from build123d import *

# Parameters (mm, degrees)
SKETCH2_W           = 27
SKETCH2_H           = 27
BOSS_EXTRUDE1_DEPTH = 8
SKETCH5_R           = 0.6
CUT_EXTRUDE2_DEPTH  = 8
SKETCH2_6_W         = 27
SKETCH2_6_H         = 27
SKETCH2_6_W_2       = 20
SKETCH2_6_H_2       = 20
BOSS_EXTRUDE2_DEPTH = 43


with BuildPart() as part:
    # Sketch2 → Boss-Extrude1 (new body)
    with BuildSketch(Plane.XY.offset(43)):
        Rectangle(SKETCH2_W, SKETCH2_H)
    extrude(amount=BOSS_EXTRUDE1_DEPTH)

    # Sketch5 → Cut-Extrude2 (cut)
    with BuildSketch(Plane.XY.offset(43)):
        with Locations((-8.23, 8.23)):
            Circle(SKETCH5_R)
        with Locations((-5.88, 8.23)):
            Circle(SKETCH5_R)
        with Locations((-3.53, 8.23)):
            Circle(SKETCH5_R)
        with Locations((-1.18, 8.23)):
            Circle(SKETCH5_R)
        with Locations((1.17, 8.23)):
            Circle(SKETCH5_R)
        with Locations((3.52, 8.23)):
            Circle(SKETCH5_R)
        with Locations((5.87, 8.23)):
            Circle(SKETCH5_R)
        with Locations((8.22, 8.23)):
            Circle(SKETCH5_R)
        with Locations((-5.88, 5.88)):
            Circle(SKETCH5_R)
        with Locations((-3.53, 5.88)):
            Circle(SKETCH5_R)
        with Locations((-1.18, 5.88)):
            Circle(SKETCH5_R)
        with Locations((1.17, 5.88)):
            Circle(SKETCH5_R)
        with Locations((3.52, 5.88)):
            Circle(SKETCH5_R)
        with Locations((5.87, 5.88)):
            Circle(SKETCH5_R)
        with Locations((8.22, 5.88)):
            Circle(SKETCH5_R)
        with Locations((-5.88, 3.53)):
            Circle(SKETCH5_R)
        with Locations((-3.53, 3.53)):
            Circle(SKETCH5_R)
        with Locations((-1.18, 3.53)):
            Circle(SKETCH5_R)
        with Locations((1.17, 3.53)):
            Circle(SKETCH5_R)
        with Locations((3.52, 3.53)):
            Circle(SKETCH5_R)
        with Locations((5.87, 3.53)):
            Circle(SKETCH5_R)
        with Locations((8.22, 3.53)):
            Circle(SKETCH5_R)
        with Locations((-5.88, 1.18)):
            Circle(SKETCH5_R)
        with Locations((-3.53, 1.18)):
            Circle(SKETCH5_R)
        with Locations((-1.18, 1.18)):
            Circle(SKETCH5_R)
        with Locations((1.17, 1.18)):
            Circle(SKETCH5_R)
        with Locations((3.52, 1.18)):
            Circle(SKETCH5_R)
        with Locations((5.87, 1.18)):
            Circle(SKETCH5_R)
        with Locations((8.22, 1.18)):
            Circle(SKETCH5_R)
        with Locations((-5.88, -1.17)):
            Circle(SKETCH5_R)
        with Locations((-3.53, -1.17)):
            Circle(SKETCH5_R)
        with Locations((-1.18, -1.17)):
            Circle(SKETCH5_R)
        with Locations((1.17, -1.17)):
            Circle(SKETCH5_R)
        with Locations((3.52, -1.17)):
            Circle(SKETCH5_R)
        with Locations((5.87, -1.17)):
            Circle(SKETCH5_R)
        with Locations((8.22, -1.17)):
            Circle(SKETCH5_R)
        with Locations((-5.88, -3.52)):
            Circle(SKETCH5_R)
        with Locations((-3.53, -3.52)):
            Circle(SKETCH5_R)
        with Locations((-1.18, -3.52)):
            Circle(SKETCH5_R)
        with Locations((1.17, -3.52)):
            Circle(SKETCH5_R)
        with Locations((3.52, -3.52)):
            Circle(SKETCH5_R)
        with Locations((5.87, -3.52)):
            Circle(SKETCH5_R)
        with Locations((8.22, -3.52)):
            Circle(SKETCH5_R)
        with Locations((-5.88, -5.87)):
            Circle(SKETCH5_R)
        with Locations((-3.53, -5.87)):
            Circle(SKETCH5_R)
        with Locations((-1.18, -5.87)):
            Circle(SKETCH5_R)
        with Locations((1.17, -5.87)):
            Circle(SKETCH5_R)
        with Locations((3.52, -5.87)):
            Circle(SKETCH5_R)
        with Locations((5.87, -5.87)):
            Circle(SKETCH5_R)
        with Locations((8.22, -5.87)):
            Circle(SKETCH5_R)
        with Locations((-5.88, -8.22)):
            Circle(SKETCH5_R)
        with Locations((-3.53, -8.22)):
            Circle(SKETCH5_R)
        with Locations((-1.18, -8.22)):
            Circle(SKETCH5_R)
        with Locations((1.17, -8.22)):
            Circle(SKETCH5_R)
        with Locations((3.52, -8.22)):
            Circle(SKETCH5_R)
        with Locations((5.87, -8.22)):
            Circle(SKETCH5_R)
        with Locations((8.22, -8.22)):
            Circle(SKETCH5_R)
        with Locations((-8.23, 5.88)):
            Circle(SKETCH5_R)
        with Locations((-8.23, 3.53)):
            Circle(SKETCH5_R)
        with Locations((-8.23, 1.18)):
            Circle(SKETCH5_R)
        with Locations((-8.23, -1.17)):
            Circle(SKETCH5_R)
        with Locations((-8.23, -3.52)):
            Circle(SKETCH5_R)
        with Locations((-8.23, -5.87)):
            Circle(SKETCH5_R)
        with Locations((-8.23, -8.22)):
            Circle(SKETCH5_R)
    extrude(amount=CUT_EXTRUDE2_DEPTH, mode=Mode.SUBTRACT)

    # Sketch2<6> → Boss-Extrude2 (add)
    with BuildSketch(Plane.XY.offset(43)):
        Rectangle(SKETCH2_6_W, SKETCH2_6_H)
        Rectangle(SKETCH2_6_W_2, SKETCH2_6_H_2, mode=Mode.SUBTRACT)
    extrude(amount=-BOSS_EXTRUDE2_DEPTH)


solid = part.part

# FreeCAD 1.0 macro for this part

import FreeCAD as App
import Part
import Sketcher
from FreeCAD import Vector
Q = App.Units.Quantity


def add_polygon(sketch, points):
    """Adds a closed chain of lines whose ends are joined by coincident constraints."""
    first, n = sketch.GeometryCount, len(points)
    for a, b in zip(points, points[1:] + points[:1]):
        sketch.addGeometry(Part.LineSegment(App.Vector(*a, 0), App.Vector(*b, 0)), False)
    for i in range(n):
        sketch.addConstraint(Sketcher.Constraint("Coincident", first + i, 2, first + (i + 1) % n, 1))

doc = App.newDocument("Part")
body = doc.addObject("PartDesign::Body", "Body")

# Sketch on XY plane
sketch1 = body.newObject("Sketcher::SketchObject", "Sketch")
sketch1.AttachmentSupport = (doc.getObject("XY_Plane"), [""])
sketch1.MapMode = "FlatFace"
sketch1.AttachmentOffset = App.Placement(Vector(0, 0, 43), App.Rotation())
add_polygon(sketch1, [(-13.5, 13.5), (-13.5, -13.5), (13.5, -13.5), (13.5, 13.5)])  # lines 0-3
sketch1.addConstraint([
    Sketcher.Constraint("Vertical", 0),
    Sketcher.Constraint("Horizontal", 1),
    Sketcher.Constraint("Vertical", 2),
    Sketcher.Constraint("Horizontal", 3),
    Sketcher.Constraint("Symmetric", 0, 2, 2, 2, -1, 1),
    Sketcher.Constraint("Equal", 3, 0),
    Sketcher.Constraint("DistanceX", 1, 1, 1, 2, Q("27 mm")),
])
pad1 = body.newObject("PartDesign::Pad", "Pad")
pad1.Profile = sketch1
pad1.Length = 8

# Sketch on XY plane
sketch2 = body.newObject("Sketcher::SketchObject", "Sketch001")
sketch2.AttachmentSupport = (doc.getObject("XY_Plane"), [""])
sketch2.MapMode = "FlatFace"
sketch2.AttachmentOffset = App.Placement(Vector(0, 0, 43), App.Rotation())
sketch2.addGeometry([
    Part.Circle(Vector(-8.23, 8.23, 0), Vector(0, 0, 1), 0.6),  # 0
    Part.Circle(Vector(-5.88, 8.23, 0), Vector(0, 0, 1), 0.6),  # 1
    Part.Circle(Vector(-3.53, 8.23, 0), Vector(0, 0, 1), 0.6),  # 2
    Part.Circle(Vector(-1.18, 8.23, 0), Vector(0, 0, 1), 0.6),  # 3
    Part.Circle(Vector(1.17, 8.23, 0), Vector(0, 0, 1), 0.6),  # 4
    Part.Circle(Vector(3.52, 8.23, 0), Vector(0, 0, 1), 0.6),  # 5
    Part.Circle(Vector(5.87, 8.23, 0), Vector(0, 0, 1), 0.6),  # 6
    Part.Circle(Vector(8.22, 8.23, 0), Vector(0, 0, 1), 0.6),  # 7
    Part.Circle(Vector(-5.88, 5.88, 0), Vector(0, 0, 1), 0.6),  # 8
    Part.Circle(Vector(-3.53, 5.88, 0), Vector(0, 0, 1), 0.6),  # 9
    Part.Circle(Vector(-1.18, 5.88, 0), Vector(0, 0, 1), 0.6),  # 10
    Part.Circle(Vector(1.17, 5.88, 0), Vector(0, 0, 1), 0.6),  # 11
    Part.Circle(Vector(3.52, 5.88, 0), Vector(0, 0, 1), 0.6),  # 12
    Part.Circle(Vector(5.87, 5.88, 0), Vector(0, 0, 1), 0.6),  # 13
    Part.Circle(Vector(8.22, 5.88, 0), Vector(0, 0, 1), 0.6),  # 14
    Part.Circle(Vector(-5.88, 3.53, 0), Vector(0, 0, 1), 0.6),  # 15
    Part.Circle(Vector(-3.53, 3.53, 0), Vector(0, 0, 1), 0.6),  # 16
    Part.Circle(Vector(-1.18, 3.53, 0), Vector(0, 0, 1), 0.6),  # 17
    Part.Circle(Vector(1.17, 3.53, 0), Vector(0, 0, 1), 0.6),  # 18
    Part.Circle(Vector(3.52, 3.53, 0), Vector(0, 0, 1), 0.6),  # 19
    Part.Circle(Vector(5.87, 3.53, 0), Vector(0, 0, 1), 0.6),  # 20
    Part.Circle(Vector(8.22, 3.53, 0), Vector(0, 0, 1), 0.6),  # 21
    Part.Circle(Vector(-5.88, 1.18, 0), Vector(0, 0, 1), 0.6),  # 22
    Part.Circle(Vector(-3.53, 1.18, 0), Vector(0, 0, 1), 0.6),  # 23
    Part.Circle(Vector(-1.18, 1.18, 0), Vector(0, 0, 1), 0.6),  # 24
    Part.Circle(Vector(1.17, 1.18, 0), Vector(0, 0, 1), 0.6),  # 25
    Part.Circle(Vector(3.52, 1.18, 0), Vector(0, 0, 1), 0.6),  # 26
    Part.Circle(Vector(5.87, 1.18, 0), Vector(0, 0, 1), 0.6),  # 27
    Part.Circle(Vector(8.22, 1.18, 0), Vector(0, 0, 1), 0.6),  # 28
    Part.Circle(Vector(-5.88, -1.17, 0), Vector(0, 0, 1), 0.6),  # 29
    Part.Circle(Vector(-3.53, -1.17, 0), Vector(0, 0, 1), 0.6),  # 30
    Part.Circle(Vector(-1.18, -1.17, 0), Vector(0, 0, 1), 0.6),  # 31
    Part.Circle(Vector(1.17, -1.17, 0), Vector(0, 0, 1), 0.6),  # 32
    Part.Circle(Vector(3.52, -1.17, 0), Vector(0, 0, 1), 0.6),  # 33
    Part.Circle(Vector(5.87, -1.17, 0), Vector(0, 0, 1), 0.6),  # 34
    Part.Circle(Vector(8.22, -1.17, 0), Vector(0, 0, 1), 0.6),  # 35
    Part.Circle(Vector(-5.88, -3.52, 0), Vector(0, 0, 1), 0.6),  # 36
    Part.Circle(Vector(-3.53, -3.52, 0), Vector(0, 0, 1), 0.6),  # 37
    Part.Circle(Vector(-1.18, -3.52, 0), Vector(0, 0, 1), 0.6),  # 38
    Part.Circle(Vector(1.17, -3.52, 0), Vector(0, 0, 1), 0.6),  # 39
    Part.Circle(Vector(3.52, -3.52, 0), Vector(0, 0, 1), 0.6),  # 40
    Part.Circle(Vector(5.87, -3.52, 0), Vector(0, 0, 1), 0.6),  # 41
    Part.Circle(Vector(8.22, -3.52, 0), Vector(0, 0, 1), 0.6),  # 42
    Part.Circle(Vector(-5.88, -5.87, 0), Vector(0, 0, 1), 0.6),  # 43
    Part.Circle(Vector(-3.53, -5.87, 0), Vector(0, 0, 1), 0.6),  # 44
    Part.Circle(Vector(-1.18, -5.87, 0), Vector(0, 0, 1), 0.6),  # 45
    Part.Circle(Vector(1.17, -5.87, 0), Vector(0, 0, 1), 0.6),  # 46
    Part.Circle(Vector(3.52, -5.87, 0), Vector(0, 0, 1), 0.6),  # 47
    Part.Circle(Vector(5.87, -5.87, 0), Vector(0, 0, 1), 0.6),  # 48
    Part.Circle(Vector(8.22, -5.87, 0), Vector(0, 0, 1), 0.6),  # 49
    Part.Circle(Vector(-5.88, -8.22, 0), Vector(0, 0, 1), 0.6),  # 50
    Part.Circle(Vector(-3.53, -8.22, 0), Vector(0, 0, 1), 0.6),  # 51
    Part.Circle(Vector(-1.18, -8.22, 0), Vector(0, 0, 1), 0.6),  # 52
    Part.Circle(Vector(1.17, -8.22, 0), Vector(0, 0, 1), 0.6),  # 53
    Part.Circle(Vector(3.52, -8.22, 0), Vector(0, 0, 1), 0.6),  # 54
    Part.Circle(Vector(5.87, -8.22, 0), Vector(0, 0, 1), 0.6),  # 55
    Part.Circle(Vector(8.22, -8.22, 0), Vector(0, 0, 1), 0.6),  # 56
    Part.Circle(Vector(-8.23, 5.88, 0), Vector(0, 0, 1), 0.6),  # 57
    Part.Circle(Vector(-8.23, 3.53, 0), Vector(0, 0, 1), 0.6),  # 58
    Part.Circle(Vector(-8.23, 1.18, 0), Vector(0, 0, 1), 0.6),  # 59
    Part.Circle(Vector(-8.23, -1.17, 0), Vector(0, 0, 1), 0.6),  # 60
    Part.Circle(Vector(-8.23, -3.52, 0), Vector(0, 0, 1), 0.6),  # 61
    Part.Circle(Vector(-8.23, -5.87, 0), Vector(0, 0, 1), 0.6),  # 62
    Part.Circle(Vector(-8.23, -8.22, 0), Vector(0, 0, 1), 0.6),  # 63
], False)
sketch2.addConstraint([
    Sketcher.Constraint("Equal", 0, 1),
    Sketcher.Constraint("Equal", 1, 2),
    Sketcher.Constraint("Equal", 2, 3),
    Sketcher.Constraint("Equal", 3, 4),
    Sketcher.Constraint("Equal", 4, 5),
    Sketcher.Constraint("Equal", 5, 6),
    Sketcher.Constraint("Equal", 6, 7),
    Sketcher.Constraint("Equal", 7, 8),
    Sketcher.Constraint("Equal", 8, 9),
    Sketcher.Constraint("Equal", 9, 10),
    Sketcher.Constraint("Equal", 10, 11),
    Sketcher.Constraint("Equal", 11, 12),
    Sketcher.Constraint("Equal", 12, 13),
    Sketcher.Constraint("Equal", 13, 14),
    Sketcher.Constraint("Equal", 14, 15),
    Sketcher.Constraint("Equal", 15, 16),
    Sketcher.Constraint("Equal", 16, 17),
    Sketcher.Constraint("Equal", 17, 18),
    Sketcher.Constraint("Equal", 18, 19),
    Sketcher.Constraint("Equal", 19, 20),
    Sketcher.Constraint("Equal", 20, 21),
    Sketcher.Constraint("Equal", 21, 22),
    Sketcher.Constraint("Equal", 22, 23),
    Sketcher.Constraint("Equal", 23, 24),
    Sketcher.Constraint("Equal", 24, 25),
    Sketcher.Constraint("Equal", 25, 26),
    Sketcher.Constraint("Equal", 26, 27),
    Sketcher.Constraint("Equal", 27, 28),
    Sketcher.Constraint("Equal", 28, 29),
    Sketcher.Constraint("Equal", 29, 30),
    Sketcher.Constraint("Equal", 30, 31),
    Sketcher.Constraint("Equal", 31, 32),
    Sketcher.Constraint("Equal", 32, 33),
    Sketcher.Constraint("Equal", 33, 34),
    Sketcher.Constraint("Equal", 34, 35),
    Sketcher.Constraint("Equal", 35, 36),
    Sketcher.Constraint("Equal", 36, 37),
    Sketcher.Constraint("Equal", 37, 38),
    Sketcher.Constraint("Equal", 38, 39),
    Sketcher.Constraint("Equal", 39, 40),
    Sketcher.Constraint("Equal", 40, 41),
    Sketcher.Constraint("Equal", 41, 42),
    Sketcher.Constraint("Equal", 42, 43),
    Sketcher.Constraint("Equal", 43, 44),
    Sketcher.Constraint("Equal", 44, 45),
    Sketcher.Constraint("Equal", 45, 46),
    Sketcher.Constraint("Equal", 46, 47),
    Sketcher.Constraint("Equal", 47, 48),
    Sketcher.Constraint("Equal", 48, 49),
    Sketcher.Constraint("Equal", 49, 50),
    Sketcher.Constraint("Equal", 50, 51),
    Sketcher.Constraint("Equal", 51, 52),
    Sketcher.Constraint("Equal", 52, 53),
    Sketcher.Constraint("Equal", 53, 54),
    Sketcher.Constraint("Equal", 54, 55),
    Sketcher.Constraint("Equal", 55, 56),
    Sketcher.Constraint("Equal", 56, 57),
    Sketcher.Constraint("Equal", 57, 58),
    Sketcher.Constraint("Equal", 58, 59),
    Sketcher.Constraint("Equal", 59, 60),
    Sketcher.Constraint("Equal", 60, 61),
    Sketcher.Constraint("Equal", 61, 62),
    Sketcher.Constraint("Equal", 62, 63),
    Sketcher.Constraint("Horizontal", 0, 3, 1, 3),
    Sketcher.Constraint("Horizontal", 1, 3, 2, 3),
    Sketcher.Constraint("Horizontal", 2, 3, 3, 3),
    Sketcher.Constraint("Horizontal", 3, 3, 4, 3),
    Sketcher.Constraint("Horizontal", 4, 3, 5, 3),
    Sketcher.Constraint("Horizontal", 5, 3, 6, 3),
    Sketcher.Constraint("Horizontal", 6, 3, 7, 3),
    Sketcher.Constraint("Horizontal", 8, 3, 9, 3),
    Sketcher.Constraint("Horizontal", 9, 3, 10, 3),
    Sketcher.Constraint("Horizontal", 10, 3, 11, 3),
    Sketcher.Constraint("Horizontal", 11, 3, 12, 3),
    Sketcher.Constraint("Horizontal", 12, 3, 13, 3),
    Sketcher.Constraint("Horizontal", 13, 3, 14, 3),
    Sketcher.Constraint("Horizontal", 15, 3, 16, 3),
    Sketcher.Constraint("Horizontal", 16, 3, 17, 3),
    Sketcher.Constraint("Horizontal", 17, 3, 18, 3),
    Sketcher.Constraint("Horizontal", 18, 3, 19, 3),
    Sketcher.Constraint("Horizontal", 19, 3, 20, 3),
    Sketcher.Constraint("Horizontal", 20, 3, 21, 3),
    Sketcher.Constraint("Horizontal", 22, 3, 23, 3),
    Sketcher.Constraint("Horizontal", 23, 3, 24, 3),
    Sketcher.Constraint("Horizontal", 24, 3, 25, 3),
    Sketcher.Constraint("Horizontal", 25, 3, 26, 3),
    Sketcher.Constraint("Horizontal", 26, 3, 27, 3),
    Sketcher.Constraint("Horizontal", 27, 3, 28, 3),
    Sketcher.Constraint("Horizontal", 29, 3, 30, 3),
    Sketcher.Constraint("Horizontal", 30, 3, 31, 3),
    Sketcher.Constraint("Horizontal", 31, 3, 32, 3),
    Sketcher.Constraint("Horizontal", 32, 3, 33, 3),
    Sketcher.Constraint("Horizontal", 33, 3, 34, 3),
    Sketcher.Constraint("Horizontal", 34, 3, 35, 3),
    Sketcher.Constraint("Horizontal", 36, 3, 37, 3),
    Sketcher.Constraint("Horizontal", 37, 3, 38, 3),
    Sketcher.Constraint("Horizontal", 38, 3, 39, 3),
    Sketcher.Constraint("Horizontal", 39, 3, 40, 3),
    Sketcher.Constraint("Horizontal", 40, 3, 41, 3),
    Sketcher.Constraint("Horizontal", 41, 3, 42, 3),
    Sketcher.Constraint("Horizontal", 43, 3, 44, 3),
    Sketcher.Constraint("Horizontal", 44, 3, 45, 3),
    Sketcher.Constraint("Horizontal", 45, 3, 46, 3),
    Sketcher.Constraint("Horizontal", 46, 3, 47, 3),
    Sketcher.Constraint("Horizontal", 47, 3, 48, 3),
    Sketcher.Constraint("Horizontal", 48, 3, 49, 3),
    Sketcher.Constraint("Horizontal", 50, 3, 51, 3),
    Sketcher.Constraint("Horizontal", 51, 3, 52, 3),
    Sketcher.Constraint("Horizontal", 52, 3, 53, 3),
    Sketcher.Constraint("Horizontal", 53, 3, 54, 3),
    Sketcher.Constraint("Horizontal", 54, 3, 55, 3),
    Sketcher.Constraint("Horizontal", 55, 3, 56, 3),
    Sketcher.Constraint("Horizontal", 14, 3, 57, 3),
    Sketcher.Constraint("Horizontal", 21, 3, 58, 3),
    Sketcher.Constraint("Horizontal", 28, 3, 59, 3),
    Sketcher.Constraint("Horizontal", 35, 3, 60, 3),
    Sketcher.Constraint("Horizontal", 42, 3, 61, 3),
    Sketcher.Constraint("Horizontal", 49, 3, 62, 3),
    Sketcher.Constraint("Horizontal", 56, 3, 63, 3),
    Sketcher.Constraint("Vertical", 1, 3, 8, 3),
    Sketcher.Constraint("Vertical", 2, 3, 9, 3),
    Sketcher.Constraint("Vertical", 3, 3, 10, 3),
    Sketcher.Constraint("Vertical", 4, 3, 11, 3),
    Sketcher.Constraint("Vertical", 5, 3, 12, 3),
    Sketcher.Constraint("Vertical", 6, 3, 13, 3),
    Sketcher.Constraint("Vertical", 7, 3, 14, 3),
    Sketcher.Constraint("Vertical", 8, 3, 15, 3),
    Sketcher.Constraint("Vertical", 9, 3, 16, 3),
    Sketcher.Constraint("Vertical", 10, 3, 17, 3),
    Sketcher.Constraint("Vertical", 11, 3, 18, 3),
    Sketcher.Constraint("Vertical", 12, 3, 19, 3),
    Sketcher.Constraint("Vertical", 13, 3, 20, 3),
    Sketcher.Constraint("Vertical", 14, 3, 21, 3),
    Sketcher.Constraint("Vertical", 15, 3, 22, 3),
    Sketcher.Constraint("Vertical", 16, 3, 23, 3),
    Sketcher.Constraint("Vertical", 17, 3, 24, 3),
    Sketcher.Constraint("Vertical", 18, 3, 25, 3),
    Sketcher.Constraint("Vertical", 19, 3, 26, 3),
    Sketcher.Constraint("Vertical", 20, 3, 27, 3),
    Sketcher.Constraint("Vertical", 21, 3, 28, 3),
    Sketcher.Constraint("Vertical", 22, 3, 29, 3),
    Sketcher.Constraint("Vertical", 23, 3, 30, 3),
    Sketcher.Constraint("Vertical", 24, 3, 31, 3),
    Sketcher.Constraint("Vertical", 25, 3, 32, 3),
    Sketcher.Constraint("Vertical", 26, 3, 33, 3),
    Sketcher.Constraint("Vertical", 27, 3, 34, 3),
    Sketcher.Constraint("Vertical", 28, 3, 35, 3),
    Sketcher.Constraint("Vertical", 29, 3, 36, 3),
    Sketcher.Constraint("Vertical", 30, 3, 37, 3),
    Sketcher.Constraint("Vertical", 31, 3, 38, 3),
    Sketcher.Constraint("Vertical", 32, 3, 39, 3),
    Sketcher.Constraint("Vertical", 33, 3, 40, 3),
    Sketcher.Constraint("Vertical", 34, 3, 41, 3),
    Sketcher.Constraint("Vertical", 35, 3, 42, 3),
    Sketcher.Constraint("Vertical", 36, 3, 43, 3),
    Sketcher.Constraint("Vertical", 37, 3, 44, 3),
    Sketcher.Constraint("Vertical", 38, 3, 45, 3),
    Sketcher.Constraint("Vertical", 39, 3, 46, 3),
    Sketcher.Constraint("Vertical", 40, 3, 47, 3),
    Sketcher.Constraint("Vertical", 41, 3, 48, 3),
    Sketcher.Constraint("Vertical", 42, 3, 49, 3),
    Sketcher.Constraint("Vertical", 43, 3, 50, 3),
    Sketcher.Constraint("Vertical", 44, 3, 51, 3),
    Sketcher.Constraint("Vertical", 45, 3, 52, 3),
    Sketcher.Constraint("Vertical", 46, 3, 53, 3),
    Sketcher.Constraint("Vertical", 47, 3, 54, 3),
    Sketcher.Constraint("Vertical", 48, 3, 55, 3),
    Sketcher.Constraint("Vertical", 49, 3, 56, 3),
    Sketcher.Constraint("Vertical", 0, 3, 57, 3),
    Sketcher.Constraint("Vertical", 57, 3, 58, 3),
    Sketcher.Constraint("Vertical", 58, 3, 59, 3),
    Sketcher.Constraint("Vertical", 59, 3, 60, 3),
    Sketcher.Constraint("Vertical", 60, 3, 61, 3),
    Sketcher.Constraint("Vertical", 61, 3, 62, 3),
    Sketcher.Constraint("Vertical", 62, 3, 63, 3),
    Sketcher.Constraint("Diameter", 0, Q("1.2 mm")),
    Sketcher.Constraint("DistanceX", 0, 3, -1, 1, Q("8.23 mm")),
    Sketcher.Constraint("DistanceY", -1, 1, 0, 3, Q("8.23 mm")),
    Sketcher.Constraint("DistanceX", 1, 3, -1, 1, Q("5.88 mm")),
    Sketcher.Constraint("DistanceX", 2, 3, -1, 1, Q("3.53 mm")),
    Sketcher.Constraint("DistanceX", 3, 3, -1, 1, Q("1.18 mm")),
    Sketcher.Constraint("DistanceX", -1, 1, 4, 3, Q("1.17 mm")),
    Sketcher.Constraint("DistanceX", -1, 1, 5, 3, Q("3.52 mm")),
    Sketcher.Constraint("DistanceX", -1, 1, 6, 3, Q("5.87 mm")),
    Sketcher.Constraint("DistanceX", -1, 1, 7, 3, Q("8.22 mm")),
    Sketcher.Constraint("DistanceY", -1, 1, 8, 3, Q("5.88 mm")),
    Sketcher.Constraint("DistanceY", -1, 1, 15, 3, Q("3.53 mm")),
    Sketcher.Constraint("DistanceY", -1, 1, 22, 3, Q("1.18 mm")),
    Sketcher.Constraint("DistanceY", 29, 3, -1, 1, Q("1.17 mm")),
    Sketcher.Constraint("DistanceY", 36, 3, -1, 1, Q("3.52 mm")),
    Sketcher.Constraint("DistanceY", 43, 3, -1, 1, Q("5.87 mm")),
    Sketcher.Constraint("DistanceY", 50, 3, -1, 1, Q("8.22 mm")),
])
pocket1 = body.newObject("PartDesign::Pocket", "Pocket")
pocket1.Profile = sketch2
pocket1.Length = 8
pocket1.Reversed = True

# Sketch on XY plane
sketch3 = body.newObject("Sketcher::SketchObject", "Sketch002")
sketch3.AttachmentSupport = (doc.getObject("XY_Plane"), [""])
sketch3.MapMode = "FlatFace"
sketch3.AttachmentOffset = App.Placement(Vector(0, 0, 43), App.Rotation())
add_polygon(sketch3, [(-13.5, 13.5), (-13.5, -13.5), (13.5, -13.5), (13.5, 13.5)])  # lines 0-3
add_polygon(sketch3, [(10, -10), (-10, -10), (-10, 10), (10, 10)])  # lines 4-7
sketch3.addConstraint([
    Sketcher.Constraint("Vertical", 0),
    Sketcher.Constraint("Horizontal", 1),
    Sketcher.Constraint("Vertical", 2),
    Sketcher.Constraint("Horizontal", 3),
    Sketcher.Constraint("Horizontal", 4),
    Sketcher.Constraint("Vertical", 5),
    Sketcher.Constraint("Horizontal", 6),
    Sketcher.Constraint("Vertical", 7),
    Sketcher.Constraint("Symmetric", 0, 2, 2, 2, -1, 1),
    Sketcher.Constraint("Symmetric", 4, 2, 6, 2, -1, 1),
    Sketcher.Constraint("Equal", 3, 0),
    Sketcher.Constraint("Equal", 6, 5),
    Sketcher.Constraint("DistanceX", 1, 1, 1, 2, Q("27 mm")),
    Sketcher.Constraint("DistanceX", 4, 2, 4, 1, Q("20 mm")),
])
pad2 = body.newObject("PartDesign::Pad", "Pad001")
pad2.Profile = sketch3
pad2.Length = 43
pad2.Reversed = True

doc.recompute()
